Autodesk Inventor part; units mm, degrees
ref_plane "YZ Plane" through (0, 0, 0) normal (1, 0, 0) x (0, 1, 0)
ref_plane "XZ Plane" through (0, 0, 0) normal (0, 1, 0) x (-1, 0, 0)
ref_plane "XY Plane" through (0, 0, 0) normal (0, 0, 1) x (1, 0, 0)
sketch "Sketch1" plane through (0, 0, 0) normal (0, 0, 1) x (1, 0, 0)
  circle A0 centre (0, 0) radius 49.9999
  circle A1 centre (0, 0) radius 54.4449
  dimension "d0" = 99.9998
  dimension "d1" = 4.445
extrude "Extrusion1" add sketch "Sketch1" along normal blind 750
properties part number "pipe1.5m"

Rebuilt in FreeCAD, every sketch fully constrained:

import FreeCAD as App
import Part
import Sketcher
from FreeCAD import Vector
Q = App.Units.Quantity

doc = App.newDocument("Part")
body = doc.addObject("PartDesign::Body", "Body")

# Sketch on XY plane
sketch1 = body.newObject("Sketcher::SketchObject", "Sketch")
sketch1.AttachmentSupport = (doc.getObject("XY_Plane"), [""])
sketch1.MapMode = "FlatFace"
sketch1.addGeometry([
    Part.Circle(Vector(0, 0, 0), Vector(0, 0, 1), 54.4449),
    Part.Circle(Vector(0, 0, 0), Vector(0, 0, 1), 49.9999),
], False)
sketch1.addConstraint([
    Sketcher.Constraint("Coincident", 0, 3, -1, 1),
    Sketcher.Constraint("Coincident", 1, 3, -1, 1),
    Sketcher.Constraint("Diameter", 1, Q("3.937 in")),
    Sketcher.Constraint("Diameter", 0, Q("4.287 in")),
])
pad1 = body.newObject("PartDesign::Pad", "Pad")
pad1.Profile = sketch1
pad1.Length = 750

doc.recompute()
